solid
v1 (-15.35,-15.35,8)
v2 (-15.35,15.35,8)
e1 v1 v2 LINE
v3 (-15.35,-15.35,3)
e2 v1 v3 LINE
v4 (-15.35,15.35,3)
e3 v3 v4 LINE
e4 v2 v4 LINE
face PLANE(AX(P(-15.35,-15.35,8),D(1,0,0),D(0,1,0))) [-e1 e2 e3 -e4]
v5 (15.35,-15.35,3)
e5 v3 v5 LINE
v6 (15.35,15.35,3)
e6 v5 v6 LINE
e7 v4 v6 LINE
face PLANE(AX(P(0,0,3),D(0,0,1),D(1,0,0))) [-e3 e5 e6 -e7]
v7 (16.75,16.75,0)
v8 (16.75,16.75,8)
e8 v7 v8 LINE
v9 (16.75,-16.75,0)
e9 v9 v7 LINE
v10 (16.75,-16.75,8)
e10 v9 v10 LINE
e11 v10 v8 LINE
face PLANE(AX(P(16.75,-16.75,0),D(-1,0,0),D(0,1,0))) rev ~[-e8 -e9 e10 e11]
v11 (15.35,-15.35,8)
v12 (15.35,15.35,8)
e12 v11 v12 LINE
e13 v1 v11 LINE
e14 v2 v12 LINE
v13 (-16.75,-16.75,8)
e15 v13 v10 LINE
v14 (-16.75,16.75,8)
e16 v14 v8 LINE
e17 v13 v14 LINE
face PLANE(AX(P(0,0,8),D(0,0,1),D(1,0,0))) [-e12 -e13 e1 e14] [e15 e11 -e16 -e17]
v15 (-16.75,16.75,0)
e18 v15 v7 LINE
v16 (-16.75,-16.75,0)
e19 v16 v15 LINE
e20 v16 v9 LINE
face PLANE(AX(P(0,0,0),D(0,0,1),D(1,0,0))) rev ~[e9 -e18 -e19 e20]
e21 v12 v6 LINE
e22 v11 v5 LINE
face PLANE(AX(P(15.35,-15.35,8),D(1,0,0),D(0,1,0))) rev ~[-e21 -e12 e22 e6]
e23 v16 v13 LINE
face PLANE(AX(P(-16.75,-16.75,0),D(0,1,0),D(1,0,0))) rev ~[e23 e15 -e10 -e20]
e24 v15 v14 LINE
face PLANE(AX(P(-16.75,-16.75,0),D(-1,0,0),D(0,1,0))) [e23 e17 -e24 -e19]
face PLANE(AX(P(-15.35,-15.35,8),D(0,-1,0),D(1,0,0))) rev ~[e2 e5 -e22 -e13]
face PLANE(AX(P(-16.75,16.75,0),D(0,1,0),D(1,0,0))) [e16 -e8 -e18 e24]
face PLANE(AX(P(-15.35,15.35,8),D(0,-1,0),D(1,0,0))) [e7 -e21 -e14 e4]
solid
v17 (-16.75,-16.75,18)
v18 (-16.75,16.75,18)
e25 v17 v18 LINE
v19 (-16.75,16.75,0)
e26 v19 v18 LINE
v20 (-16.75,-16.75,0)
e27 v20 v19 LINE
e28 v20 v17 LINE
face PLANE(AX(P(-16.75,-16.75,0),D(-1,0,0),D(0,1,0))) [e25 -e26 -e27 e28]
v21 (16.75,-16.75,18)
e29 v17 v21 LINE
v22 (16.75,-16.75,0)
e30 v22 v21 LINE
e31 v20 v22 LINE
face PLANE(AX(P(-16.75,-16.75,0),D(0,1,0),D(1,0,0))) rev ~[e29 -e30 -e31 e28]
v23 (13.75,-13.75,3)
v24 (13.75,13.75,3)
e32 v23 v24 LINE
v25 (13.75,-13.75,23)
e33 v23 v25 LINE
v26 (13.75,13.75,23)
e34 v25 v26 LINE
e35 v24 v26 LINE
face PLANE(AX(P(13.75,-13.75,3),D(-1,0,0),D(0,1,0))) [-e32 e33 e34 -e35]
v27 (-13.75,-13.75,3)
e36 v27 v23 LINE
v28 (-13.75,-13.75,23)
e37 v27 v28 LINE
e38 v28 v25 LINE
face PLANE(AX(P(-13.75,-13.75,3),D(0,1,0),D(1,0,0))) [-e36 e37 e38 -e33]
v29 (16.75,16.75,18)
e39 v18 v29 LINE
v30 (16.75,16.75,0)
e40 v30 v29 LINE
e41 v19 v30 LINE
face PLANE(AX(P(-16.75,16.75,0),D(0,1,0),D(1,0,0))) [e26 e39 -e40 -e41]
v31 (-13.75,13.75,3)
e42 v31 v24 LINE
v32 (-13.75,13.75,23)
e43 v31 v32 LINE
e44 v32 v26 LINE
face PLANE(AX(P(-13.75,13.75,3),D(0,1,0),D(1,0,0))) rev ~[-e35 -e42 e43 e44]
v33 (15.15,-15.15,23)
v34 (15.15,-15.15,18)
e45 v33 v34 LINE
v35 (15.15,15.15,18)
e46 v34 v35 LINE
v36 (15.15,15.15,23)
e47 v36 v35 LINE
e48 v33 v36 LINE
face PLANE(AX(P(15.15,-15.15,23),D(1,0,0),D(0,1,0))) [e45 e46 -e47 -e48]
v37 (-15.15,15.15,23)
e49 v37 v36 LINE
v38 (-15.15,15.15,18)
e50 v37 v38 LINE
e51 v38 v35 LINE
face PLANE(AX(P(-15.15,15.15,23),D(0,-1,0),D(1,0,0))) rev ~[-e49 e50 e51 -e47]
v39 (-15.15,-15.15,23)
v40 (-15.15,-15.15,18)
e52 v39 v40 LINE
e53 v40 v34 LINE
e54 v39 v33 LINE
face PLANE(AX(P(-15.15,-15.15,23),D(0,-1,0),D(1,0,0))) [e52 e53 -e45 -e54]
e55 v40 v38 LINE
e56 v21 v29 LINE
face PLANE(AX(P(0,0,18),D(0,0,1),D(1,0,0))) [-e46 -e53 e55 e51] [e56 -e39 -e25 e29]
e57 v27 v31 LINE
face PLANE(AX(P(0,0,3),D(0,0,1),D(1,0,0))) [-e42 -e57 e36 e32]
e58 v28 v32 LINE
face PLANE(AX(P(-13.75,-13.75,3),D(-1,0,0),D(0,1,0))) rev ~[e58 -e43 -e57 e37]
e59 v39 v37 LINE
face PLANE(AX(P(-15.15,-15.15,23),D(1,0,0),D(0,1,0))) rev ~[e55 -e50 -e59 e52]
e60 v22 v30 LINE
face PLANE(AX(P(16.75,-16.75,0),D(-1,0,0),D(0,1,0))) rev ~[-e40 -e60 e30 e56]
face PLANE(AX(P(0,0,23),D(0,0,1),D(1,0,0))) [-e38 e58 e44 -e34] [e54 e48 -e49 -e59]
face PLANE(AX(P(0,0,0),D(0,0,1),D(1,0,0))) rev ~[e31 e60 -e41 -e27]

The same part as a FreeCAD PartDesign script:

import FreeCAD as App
import Part
import Sketcher

V = App.Vector
Q = App.Units.Quantity


def add_polygon(sketch, points):
    """Adds a closed chain of lines whose ends are joined by coincident constraints."""
    first, n = sketch.GeometryCount, len(points)
    for a, b in zip(points, points[1:] + points[:1]):
        sketch.addGeometry(Part.LineSegment(App.Vector(*a, 0), App.Vector(*b, 0)), False)
    for i in range(n):
        sketch.addConstraint(Sketcher.Constraint("Coincident", first + i, 2, first + (i + 1) % n, 1))

doc = App.newDocument("Part")
body = doc.addObject("PartDesign::Body", "Body")

# Sketch on XY plane
sketch1 = body.newObject("Sketcher::SketchObject", "Sketch")
sketch1.AttachmentSupport = (doc.getObject("XY_Plane"), [""])
sketch1.MapMode = "FlatFace"
add_polygon(sketch1, [(-16.75, 16.75), (-16.75, -16.75), (16.75, -16.75), (16.75, 16.75)])  # lines 0-3
sketch1.addConstraint([
    Sketcher.Constraint("Vertical", 0),
    Sketcher.Constraint("Horizontal", 1),
    Sketcher.Constraint("Vertical", 2),
    Sketcher.Constraint("Horizontal", 3),
    Sketcher.Constraint("Symmetric", 0, 2, 2, 2, -1, 1),
    Sketcher.Constraint("Equal", 3, 0),
    Sketcher.Constraint("DistanceX", 1, 1, 1, 2, Q("33.5 mm")),
])
pad1 = body.newObject("PartDesign::Pad", "Pad")
pad1.Profile = sketch1
pad1.Length = 23

# Sketch on XY plane
sketch2 = body.newObject("Sketcher::SketchObject", "Sketch001")
sketch2.AttachmentSupport = (doc.getObject("XY_Plane"), [""])
sketch2.MapMode = "FlatFace"
sketch2.AttachmentOffset = App.Placement(V(0, 0, 3), App.Rotation())
add_polygon(sketch2, [(-13.75, 13.75), (-13.75, -13.75), (13.75, -13.75), (13.75, 13.75)])  # lines 0-3
sketch2.addConstraint([
    Sketcher.Constraint("Vertical", 0),
    Sketcher.Constraint("Horizontal", 1),
    Sketcher.Constraint("Vertical", 2),
    Sketcher.Constraint("Horizontal", 3),
    Sketcher.Constraint("Symmetric", 0, 2, 2, 2, -1, 1),
    Sketcher.Constraint("Equal", 3, 0),
    Sketcher.Constraint("DistanceX", 1, 1, 1, 2, Q("27.5 mm")),
])
pocket1 = body.newObject("PartDesign::Pocket", "Pocket")
pocket1.Profile = sketch2
pocket1.Length = 20
pocket1.Reversed = True

# Sketch on XY plane
sketch3 = body.newObject("Sketcher::SketchObject", "Sketch002")
sketch3.AttachmentSupport = (doc.getObject("XY_Plane"), [""])
sketch3.MapMode = "FlatFace"
sketch3.AttachmentOffset = App.Placement(V(0, 0, 23), App.Rotation())
add_polygon(sketch3, [(-16.75, 16.75), (-16.75, -16.75), (16.75, -16.75), (16.75, 16.75)])  # lines 0-3
add_polygon(sketch3, [(15.15, -15.15), (-15.15, -15.15), (-15.15, 15.15), (15.15, 15.15)])  # lines 4-7
sketch3.addConstraint([
    Sketcher.Constraint("Vertical", 0),
    Sketcher.Constraint("Horizontal", 1),
    Sketcher.Constraint("Vertical", 2),
    Sketcher.Constraint("Horizontal", 3),
    Sketcher.Constraint("Horizontal", 4),
    Sketcher.Constraint("Vertical", 5),
    Sketcher.Constraint("Horizontal", 6),
    Sketcher.Constraint("Vertical", 7),
    Sketcher.Constraint("Symmetric", 0, 2, 2, 2, -1, 1),
    Sketcher.Constraint("Symmetric", 4, 2, 6, 2, -1, 1),
    Sketcher.Constraint("Equal", 3, 0),
    Sketcher.Constraint("Equal", 6, 5),
    Sketcher.Constraint("DistanceX", 1, 1, 1, 2, Q("33.5 mm")),
    Sketcher.Constraint("DistanceX", 4, 2, 4, 1, Q("30.3 mm")),
])
pocket2 = body.newObject("PartDesign::Pocket", "Pocket001")
pocket2.Profile = sketch3
pocket2.Length = 5
body2 = doc.addObject("PartDesign::Body", "Body001")

# Sketch on XY plane
sketch4 = body2.newObject("Sketcher::SketchObject", "Sketch003")
sketch4.AttachmentSupport = (doc.getObject("XY_Plane001"), [""])
sketch4.MapMode = "FlatFace"
add_polygon(sketch4, [(-16.75, 16.75), (-16.75, -16.75), (16.75, -16.75), (16.75, 16.75)])  # lines 0-3
sketch4.addConstraint([
    Sketcher.Constraint("Vertical", 0),
    Sketcher.Constraint("Horizontal", 1),
    Sketcher.Constraint("Vertical", 2),
    Sketcher.Constraint("Horizontal", 3),
    Sketcher.Constraint("Symmetric", 0, 2, 2, 2, -1, 1),
    Sketcher.Constraint("Equal", 3, 0),
    Sketcher.Constraint("DistanceX", 1, 1, 1, 2, Q("33.5 mm")),
])
pad2 = body2.newObject("PartDesign::Pad", "Pad001")
pad2.Profile = sketch4
pad2.Length = 8

# Sketch on XY plane
sketch5 = body2.newObject("Sketcher::SketchObject", "Sketch004")
sketch5.AttachmentSupport = (doc.getObject("XY_Plane001"), [""])
sketch5.MapMode = "FlatFace"
sketch5.AttachmentOffset = App.Placement(V(0, 0, 8), App.Rotation())
add_polygon(sketch5, [(-15.35, 15.35), (-15.35, -15.35), (15.35, -15.35), (15.35, 15.35)])  # lines 0-3
sketch5.addConstraint([
    Sketcher.Constraint("Vertical", 0),
    Sketcher.Constraint("Horizontal", 1),
    Sketcher.Constraint("Vertical", 2),
    Sketcher.Constraint("Horizontal", 3),
    Sketcher.Constraint("Symmetric", 0, 2, 2, 2, -1, 1),
    Sketcher.Constraint("Equal", 3, 0),
    Sketcher.Constraint("DistanceX", 1, 1, 1, 2, Q("30.7 mm")),
])
pocket3 = body2.newObject("PartDesign::Pocket", "Pocket002")
pocket3.Profile = sketch5
pocket3.Length = 5

doc.recompute()
